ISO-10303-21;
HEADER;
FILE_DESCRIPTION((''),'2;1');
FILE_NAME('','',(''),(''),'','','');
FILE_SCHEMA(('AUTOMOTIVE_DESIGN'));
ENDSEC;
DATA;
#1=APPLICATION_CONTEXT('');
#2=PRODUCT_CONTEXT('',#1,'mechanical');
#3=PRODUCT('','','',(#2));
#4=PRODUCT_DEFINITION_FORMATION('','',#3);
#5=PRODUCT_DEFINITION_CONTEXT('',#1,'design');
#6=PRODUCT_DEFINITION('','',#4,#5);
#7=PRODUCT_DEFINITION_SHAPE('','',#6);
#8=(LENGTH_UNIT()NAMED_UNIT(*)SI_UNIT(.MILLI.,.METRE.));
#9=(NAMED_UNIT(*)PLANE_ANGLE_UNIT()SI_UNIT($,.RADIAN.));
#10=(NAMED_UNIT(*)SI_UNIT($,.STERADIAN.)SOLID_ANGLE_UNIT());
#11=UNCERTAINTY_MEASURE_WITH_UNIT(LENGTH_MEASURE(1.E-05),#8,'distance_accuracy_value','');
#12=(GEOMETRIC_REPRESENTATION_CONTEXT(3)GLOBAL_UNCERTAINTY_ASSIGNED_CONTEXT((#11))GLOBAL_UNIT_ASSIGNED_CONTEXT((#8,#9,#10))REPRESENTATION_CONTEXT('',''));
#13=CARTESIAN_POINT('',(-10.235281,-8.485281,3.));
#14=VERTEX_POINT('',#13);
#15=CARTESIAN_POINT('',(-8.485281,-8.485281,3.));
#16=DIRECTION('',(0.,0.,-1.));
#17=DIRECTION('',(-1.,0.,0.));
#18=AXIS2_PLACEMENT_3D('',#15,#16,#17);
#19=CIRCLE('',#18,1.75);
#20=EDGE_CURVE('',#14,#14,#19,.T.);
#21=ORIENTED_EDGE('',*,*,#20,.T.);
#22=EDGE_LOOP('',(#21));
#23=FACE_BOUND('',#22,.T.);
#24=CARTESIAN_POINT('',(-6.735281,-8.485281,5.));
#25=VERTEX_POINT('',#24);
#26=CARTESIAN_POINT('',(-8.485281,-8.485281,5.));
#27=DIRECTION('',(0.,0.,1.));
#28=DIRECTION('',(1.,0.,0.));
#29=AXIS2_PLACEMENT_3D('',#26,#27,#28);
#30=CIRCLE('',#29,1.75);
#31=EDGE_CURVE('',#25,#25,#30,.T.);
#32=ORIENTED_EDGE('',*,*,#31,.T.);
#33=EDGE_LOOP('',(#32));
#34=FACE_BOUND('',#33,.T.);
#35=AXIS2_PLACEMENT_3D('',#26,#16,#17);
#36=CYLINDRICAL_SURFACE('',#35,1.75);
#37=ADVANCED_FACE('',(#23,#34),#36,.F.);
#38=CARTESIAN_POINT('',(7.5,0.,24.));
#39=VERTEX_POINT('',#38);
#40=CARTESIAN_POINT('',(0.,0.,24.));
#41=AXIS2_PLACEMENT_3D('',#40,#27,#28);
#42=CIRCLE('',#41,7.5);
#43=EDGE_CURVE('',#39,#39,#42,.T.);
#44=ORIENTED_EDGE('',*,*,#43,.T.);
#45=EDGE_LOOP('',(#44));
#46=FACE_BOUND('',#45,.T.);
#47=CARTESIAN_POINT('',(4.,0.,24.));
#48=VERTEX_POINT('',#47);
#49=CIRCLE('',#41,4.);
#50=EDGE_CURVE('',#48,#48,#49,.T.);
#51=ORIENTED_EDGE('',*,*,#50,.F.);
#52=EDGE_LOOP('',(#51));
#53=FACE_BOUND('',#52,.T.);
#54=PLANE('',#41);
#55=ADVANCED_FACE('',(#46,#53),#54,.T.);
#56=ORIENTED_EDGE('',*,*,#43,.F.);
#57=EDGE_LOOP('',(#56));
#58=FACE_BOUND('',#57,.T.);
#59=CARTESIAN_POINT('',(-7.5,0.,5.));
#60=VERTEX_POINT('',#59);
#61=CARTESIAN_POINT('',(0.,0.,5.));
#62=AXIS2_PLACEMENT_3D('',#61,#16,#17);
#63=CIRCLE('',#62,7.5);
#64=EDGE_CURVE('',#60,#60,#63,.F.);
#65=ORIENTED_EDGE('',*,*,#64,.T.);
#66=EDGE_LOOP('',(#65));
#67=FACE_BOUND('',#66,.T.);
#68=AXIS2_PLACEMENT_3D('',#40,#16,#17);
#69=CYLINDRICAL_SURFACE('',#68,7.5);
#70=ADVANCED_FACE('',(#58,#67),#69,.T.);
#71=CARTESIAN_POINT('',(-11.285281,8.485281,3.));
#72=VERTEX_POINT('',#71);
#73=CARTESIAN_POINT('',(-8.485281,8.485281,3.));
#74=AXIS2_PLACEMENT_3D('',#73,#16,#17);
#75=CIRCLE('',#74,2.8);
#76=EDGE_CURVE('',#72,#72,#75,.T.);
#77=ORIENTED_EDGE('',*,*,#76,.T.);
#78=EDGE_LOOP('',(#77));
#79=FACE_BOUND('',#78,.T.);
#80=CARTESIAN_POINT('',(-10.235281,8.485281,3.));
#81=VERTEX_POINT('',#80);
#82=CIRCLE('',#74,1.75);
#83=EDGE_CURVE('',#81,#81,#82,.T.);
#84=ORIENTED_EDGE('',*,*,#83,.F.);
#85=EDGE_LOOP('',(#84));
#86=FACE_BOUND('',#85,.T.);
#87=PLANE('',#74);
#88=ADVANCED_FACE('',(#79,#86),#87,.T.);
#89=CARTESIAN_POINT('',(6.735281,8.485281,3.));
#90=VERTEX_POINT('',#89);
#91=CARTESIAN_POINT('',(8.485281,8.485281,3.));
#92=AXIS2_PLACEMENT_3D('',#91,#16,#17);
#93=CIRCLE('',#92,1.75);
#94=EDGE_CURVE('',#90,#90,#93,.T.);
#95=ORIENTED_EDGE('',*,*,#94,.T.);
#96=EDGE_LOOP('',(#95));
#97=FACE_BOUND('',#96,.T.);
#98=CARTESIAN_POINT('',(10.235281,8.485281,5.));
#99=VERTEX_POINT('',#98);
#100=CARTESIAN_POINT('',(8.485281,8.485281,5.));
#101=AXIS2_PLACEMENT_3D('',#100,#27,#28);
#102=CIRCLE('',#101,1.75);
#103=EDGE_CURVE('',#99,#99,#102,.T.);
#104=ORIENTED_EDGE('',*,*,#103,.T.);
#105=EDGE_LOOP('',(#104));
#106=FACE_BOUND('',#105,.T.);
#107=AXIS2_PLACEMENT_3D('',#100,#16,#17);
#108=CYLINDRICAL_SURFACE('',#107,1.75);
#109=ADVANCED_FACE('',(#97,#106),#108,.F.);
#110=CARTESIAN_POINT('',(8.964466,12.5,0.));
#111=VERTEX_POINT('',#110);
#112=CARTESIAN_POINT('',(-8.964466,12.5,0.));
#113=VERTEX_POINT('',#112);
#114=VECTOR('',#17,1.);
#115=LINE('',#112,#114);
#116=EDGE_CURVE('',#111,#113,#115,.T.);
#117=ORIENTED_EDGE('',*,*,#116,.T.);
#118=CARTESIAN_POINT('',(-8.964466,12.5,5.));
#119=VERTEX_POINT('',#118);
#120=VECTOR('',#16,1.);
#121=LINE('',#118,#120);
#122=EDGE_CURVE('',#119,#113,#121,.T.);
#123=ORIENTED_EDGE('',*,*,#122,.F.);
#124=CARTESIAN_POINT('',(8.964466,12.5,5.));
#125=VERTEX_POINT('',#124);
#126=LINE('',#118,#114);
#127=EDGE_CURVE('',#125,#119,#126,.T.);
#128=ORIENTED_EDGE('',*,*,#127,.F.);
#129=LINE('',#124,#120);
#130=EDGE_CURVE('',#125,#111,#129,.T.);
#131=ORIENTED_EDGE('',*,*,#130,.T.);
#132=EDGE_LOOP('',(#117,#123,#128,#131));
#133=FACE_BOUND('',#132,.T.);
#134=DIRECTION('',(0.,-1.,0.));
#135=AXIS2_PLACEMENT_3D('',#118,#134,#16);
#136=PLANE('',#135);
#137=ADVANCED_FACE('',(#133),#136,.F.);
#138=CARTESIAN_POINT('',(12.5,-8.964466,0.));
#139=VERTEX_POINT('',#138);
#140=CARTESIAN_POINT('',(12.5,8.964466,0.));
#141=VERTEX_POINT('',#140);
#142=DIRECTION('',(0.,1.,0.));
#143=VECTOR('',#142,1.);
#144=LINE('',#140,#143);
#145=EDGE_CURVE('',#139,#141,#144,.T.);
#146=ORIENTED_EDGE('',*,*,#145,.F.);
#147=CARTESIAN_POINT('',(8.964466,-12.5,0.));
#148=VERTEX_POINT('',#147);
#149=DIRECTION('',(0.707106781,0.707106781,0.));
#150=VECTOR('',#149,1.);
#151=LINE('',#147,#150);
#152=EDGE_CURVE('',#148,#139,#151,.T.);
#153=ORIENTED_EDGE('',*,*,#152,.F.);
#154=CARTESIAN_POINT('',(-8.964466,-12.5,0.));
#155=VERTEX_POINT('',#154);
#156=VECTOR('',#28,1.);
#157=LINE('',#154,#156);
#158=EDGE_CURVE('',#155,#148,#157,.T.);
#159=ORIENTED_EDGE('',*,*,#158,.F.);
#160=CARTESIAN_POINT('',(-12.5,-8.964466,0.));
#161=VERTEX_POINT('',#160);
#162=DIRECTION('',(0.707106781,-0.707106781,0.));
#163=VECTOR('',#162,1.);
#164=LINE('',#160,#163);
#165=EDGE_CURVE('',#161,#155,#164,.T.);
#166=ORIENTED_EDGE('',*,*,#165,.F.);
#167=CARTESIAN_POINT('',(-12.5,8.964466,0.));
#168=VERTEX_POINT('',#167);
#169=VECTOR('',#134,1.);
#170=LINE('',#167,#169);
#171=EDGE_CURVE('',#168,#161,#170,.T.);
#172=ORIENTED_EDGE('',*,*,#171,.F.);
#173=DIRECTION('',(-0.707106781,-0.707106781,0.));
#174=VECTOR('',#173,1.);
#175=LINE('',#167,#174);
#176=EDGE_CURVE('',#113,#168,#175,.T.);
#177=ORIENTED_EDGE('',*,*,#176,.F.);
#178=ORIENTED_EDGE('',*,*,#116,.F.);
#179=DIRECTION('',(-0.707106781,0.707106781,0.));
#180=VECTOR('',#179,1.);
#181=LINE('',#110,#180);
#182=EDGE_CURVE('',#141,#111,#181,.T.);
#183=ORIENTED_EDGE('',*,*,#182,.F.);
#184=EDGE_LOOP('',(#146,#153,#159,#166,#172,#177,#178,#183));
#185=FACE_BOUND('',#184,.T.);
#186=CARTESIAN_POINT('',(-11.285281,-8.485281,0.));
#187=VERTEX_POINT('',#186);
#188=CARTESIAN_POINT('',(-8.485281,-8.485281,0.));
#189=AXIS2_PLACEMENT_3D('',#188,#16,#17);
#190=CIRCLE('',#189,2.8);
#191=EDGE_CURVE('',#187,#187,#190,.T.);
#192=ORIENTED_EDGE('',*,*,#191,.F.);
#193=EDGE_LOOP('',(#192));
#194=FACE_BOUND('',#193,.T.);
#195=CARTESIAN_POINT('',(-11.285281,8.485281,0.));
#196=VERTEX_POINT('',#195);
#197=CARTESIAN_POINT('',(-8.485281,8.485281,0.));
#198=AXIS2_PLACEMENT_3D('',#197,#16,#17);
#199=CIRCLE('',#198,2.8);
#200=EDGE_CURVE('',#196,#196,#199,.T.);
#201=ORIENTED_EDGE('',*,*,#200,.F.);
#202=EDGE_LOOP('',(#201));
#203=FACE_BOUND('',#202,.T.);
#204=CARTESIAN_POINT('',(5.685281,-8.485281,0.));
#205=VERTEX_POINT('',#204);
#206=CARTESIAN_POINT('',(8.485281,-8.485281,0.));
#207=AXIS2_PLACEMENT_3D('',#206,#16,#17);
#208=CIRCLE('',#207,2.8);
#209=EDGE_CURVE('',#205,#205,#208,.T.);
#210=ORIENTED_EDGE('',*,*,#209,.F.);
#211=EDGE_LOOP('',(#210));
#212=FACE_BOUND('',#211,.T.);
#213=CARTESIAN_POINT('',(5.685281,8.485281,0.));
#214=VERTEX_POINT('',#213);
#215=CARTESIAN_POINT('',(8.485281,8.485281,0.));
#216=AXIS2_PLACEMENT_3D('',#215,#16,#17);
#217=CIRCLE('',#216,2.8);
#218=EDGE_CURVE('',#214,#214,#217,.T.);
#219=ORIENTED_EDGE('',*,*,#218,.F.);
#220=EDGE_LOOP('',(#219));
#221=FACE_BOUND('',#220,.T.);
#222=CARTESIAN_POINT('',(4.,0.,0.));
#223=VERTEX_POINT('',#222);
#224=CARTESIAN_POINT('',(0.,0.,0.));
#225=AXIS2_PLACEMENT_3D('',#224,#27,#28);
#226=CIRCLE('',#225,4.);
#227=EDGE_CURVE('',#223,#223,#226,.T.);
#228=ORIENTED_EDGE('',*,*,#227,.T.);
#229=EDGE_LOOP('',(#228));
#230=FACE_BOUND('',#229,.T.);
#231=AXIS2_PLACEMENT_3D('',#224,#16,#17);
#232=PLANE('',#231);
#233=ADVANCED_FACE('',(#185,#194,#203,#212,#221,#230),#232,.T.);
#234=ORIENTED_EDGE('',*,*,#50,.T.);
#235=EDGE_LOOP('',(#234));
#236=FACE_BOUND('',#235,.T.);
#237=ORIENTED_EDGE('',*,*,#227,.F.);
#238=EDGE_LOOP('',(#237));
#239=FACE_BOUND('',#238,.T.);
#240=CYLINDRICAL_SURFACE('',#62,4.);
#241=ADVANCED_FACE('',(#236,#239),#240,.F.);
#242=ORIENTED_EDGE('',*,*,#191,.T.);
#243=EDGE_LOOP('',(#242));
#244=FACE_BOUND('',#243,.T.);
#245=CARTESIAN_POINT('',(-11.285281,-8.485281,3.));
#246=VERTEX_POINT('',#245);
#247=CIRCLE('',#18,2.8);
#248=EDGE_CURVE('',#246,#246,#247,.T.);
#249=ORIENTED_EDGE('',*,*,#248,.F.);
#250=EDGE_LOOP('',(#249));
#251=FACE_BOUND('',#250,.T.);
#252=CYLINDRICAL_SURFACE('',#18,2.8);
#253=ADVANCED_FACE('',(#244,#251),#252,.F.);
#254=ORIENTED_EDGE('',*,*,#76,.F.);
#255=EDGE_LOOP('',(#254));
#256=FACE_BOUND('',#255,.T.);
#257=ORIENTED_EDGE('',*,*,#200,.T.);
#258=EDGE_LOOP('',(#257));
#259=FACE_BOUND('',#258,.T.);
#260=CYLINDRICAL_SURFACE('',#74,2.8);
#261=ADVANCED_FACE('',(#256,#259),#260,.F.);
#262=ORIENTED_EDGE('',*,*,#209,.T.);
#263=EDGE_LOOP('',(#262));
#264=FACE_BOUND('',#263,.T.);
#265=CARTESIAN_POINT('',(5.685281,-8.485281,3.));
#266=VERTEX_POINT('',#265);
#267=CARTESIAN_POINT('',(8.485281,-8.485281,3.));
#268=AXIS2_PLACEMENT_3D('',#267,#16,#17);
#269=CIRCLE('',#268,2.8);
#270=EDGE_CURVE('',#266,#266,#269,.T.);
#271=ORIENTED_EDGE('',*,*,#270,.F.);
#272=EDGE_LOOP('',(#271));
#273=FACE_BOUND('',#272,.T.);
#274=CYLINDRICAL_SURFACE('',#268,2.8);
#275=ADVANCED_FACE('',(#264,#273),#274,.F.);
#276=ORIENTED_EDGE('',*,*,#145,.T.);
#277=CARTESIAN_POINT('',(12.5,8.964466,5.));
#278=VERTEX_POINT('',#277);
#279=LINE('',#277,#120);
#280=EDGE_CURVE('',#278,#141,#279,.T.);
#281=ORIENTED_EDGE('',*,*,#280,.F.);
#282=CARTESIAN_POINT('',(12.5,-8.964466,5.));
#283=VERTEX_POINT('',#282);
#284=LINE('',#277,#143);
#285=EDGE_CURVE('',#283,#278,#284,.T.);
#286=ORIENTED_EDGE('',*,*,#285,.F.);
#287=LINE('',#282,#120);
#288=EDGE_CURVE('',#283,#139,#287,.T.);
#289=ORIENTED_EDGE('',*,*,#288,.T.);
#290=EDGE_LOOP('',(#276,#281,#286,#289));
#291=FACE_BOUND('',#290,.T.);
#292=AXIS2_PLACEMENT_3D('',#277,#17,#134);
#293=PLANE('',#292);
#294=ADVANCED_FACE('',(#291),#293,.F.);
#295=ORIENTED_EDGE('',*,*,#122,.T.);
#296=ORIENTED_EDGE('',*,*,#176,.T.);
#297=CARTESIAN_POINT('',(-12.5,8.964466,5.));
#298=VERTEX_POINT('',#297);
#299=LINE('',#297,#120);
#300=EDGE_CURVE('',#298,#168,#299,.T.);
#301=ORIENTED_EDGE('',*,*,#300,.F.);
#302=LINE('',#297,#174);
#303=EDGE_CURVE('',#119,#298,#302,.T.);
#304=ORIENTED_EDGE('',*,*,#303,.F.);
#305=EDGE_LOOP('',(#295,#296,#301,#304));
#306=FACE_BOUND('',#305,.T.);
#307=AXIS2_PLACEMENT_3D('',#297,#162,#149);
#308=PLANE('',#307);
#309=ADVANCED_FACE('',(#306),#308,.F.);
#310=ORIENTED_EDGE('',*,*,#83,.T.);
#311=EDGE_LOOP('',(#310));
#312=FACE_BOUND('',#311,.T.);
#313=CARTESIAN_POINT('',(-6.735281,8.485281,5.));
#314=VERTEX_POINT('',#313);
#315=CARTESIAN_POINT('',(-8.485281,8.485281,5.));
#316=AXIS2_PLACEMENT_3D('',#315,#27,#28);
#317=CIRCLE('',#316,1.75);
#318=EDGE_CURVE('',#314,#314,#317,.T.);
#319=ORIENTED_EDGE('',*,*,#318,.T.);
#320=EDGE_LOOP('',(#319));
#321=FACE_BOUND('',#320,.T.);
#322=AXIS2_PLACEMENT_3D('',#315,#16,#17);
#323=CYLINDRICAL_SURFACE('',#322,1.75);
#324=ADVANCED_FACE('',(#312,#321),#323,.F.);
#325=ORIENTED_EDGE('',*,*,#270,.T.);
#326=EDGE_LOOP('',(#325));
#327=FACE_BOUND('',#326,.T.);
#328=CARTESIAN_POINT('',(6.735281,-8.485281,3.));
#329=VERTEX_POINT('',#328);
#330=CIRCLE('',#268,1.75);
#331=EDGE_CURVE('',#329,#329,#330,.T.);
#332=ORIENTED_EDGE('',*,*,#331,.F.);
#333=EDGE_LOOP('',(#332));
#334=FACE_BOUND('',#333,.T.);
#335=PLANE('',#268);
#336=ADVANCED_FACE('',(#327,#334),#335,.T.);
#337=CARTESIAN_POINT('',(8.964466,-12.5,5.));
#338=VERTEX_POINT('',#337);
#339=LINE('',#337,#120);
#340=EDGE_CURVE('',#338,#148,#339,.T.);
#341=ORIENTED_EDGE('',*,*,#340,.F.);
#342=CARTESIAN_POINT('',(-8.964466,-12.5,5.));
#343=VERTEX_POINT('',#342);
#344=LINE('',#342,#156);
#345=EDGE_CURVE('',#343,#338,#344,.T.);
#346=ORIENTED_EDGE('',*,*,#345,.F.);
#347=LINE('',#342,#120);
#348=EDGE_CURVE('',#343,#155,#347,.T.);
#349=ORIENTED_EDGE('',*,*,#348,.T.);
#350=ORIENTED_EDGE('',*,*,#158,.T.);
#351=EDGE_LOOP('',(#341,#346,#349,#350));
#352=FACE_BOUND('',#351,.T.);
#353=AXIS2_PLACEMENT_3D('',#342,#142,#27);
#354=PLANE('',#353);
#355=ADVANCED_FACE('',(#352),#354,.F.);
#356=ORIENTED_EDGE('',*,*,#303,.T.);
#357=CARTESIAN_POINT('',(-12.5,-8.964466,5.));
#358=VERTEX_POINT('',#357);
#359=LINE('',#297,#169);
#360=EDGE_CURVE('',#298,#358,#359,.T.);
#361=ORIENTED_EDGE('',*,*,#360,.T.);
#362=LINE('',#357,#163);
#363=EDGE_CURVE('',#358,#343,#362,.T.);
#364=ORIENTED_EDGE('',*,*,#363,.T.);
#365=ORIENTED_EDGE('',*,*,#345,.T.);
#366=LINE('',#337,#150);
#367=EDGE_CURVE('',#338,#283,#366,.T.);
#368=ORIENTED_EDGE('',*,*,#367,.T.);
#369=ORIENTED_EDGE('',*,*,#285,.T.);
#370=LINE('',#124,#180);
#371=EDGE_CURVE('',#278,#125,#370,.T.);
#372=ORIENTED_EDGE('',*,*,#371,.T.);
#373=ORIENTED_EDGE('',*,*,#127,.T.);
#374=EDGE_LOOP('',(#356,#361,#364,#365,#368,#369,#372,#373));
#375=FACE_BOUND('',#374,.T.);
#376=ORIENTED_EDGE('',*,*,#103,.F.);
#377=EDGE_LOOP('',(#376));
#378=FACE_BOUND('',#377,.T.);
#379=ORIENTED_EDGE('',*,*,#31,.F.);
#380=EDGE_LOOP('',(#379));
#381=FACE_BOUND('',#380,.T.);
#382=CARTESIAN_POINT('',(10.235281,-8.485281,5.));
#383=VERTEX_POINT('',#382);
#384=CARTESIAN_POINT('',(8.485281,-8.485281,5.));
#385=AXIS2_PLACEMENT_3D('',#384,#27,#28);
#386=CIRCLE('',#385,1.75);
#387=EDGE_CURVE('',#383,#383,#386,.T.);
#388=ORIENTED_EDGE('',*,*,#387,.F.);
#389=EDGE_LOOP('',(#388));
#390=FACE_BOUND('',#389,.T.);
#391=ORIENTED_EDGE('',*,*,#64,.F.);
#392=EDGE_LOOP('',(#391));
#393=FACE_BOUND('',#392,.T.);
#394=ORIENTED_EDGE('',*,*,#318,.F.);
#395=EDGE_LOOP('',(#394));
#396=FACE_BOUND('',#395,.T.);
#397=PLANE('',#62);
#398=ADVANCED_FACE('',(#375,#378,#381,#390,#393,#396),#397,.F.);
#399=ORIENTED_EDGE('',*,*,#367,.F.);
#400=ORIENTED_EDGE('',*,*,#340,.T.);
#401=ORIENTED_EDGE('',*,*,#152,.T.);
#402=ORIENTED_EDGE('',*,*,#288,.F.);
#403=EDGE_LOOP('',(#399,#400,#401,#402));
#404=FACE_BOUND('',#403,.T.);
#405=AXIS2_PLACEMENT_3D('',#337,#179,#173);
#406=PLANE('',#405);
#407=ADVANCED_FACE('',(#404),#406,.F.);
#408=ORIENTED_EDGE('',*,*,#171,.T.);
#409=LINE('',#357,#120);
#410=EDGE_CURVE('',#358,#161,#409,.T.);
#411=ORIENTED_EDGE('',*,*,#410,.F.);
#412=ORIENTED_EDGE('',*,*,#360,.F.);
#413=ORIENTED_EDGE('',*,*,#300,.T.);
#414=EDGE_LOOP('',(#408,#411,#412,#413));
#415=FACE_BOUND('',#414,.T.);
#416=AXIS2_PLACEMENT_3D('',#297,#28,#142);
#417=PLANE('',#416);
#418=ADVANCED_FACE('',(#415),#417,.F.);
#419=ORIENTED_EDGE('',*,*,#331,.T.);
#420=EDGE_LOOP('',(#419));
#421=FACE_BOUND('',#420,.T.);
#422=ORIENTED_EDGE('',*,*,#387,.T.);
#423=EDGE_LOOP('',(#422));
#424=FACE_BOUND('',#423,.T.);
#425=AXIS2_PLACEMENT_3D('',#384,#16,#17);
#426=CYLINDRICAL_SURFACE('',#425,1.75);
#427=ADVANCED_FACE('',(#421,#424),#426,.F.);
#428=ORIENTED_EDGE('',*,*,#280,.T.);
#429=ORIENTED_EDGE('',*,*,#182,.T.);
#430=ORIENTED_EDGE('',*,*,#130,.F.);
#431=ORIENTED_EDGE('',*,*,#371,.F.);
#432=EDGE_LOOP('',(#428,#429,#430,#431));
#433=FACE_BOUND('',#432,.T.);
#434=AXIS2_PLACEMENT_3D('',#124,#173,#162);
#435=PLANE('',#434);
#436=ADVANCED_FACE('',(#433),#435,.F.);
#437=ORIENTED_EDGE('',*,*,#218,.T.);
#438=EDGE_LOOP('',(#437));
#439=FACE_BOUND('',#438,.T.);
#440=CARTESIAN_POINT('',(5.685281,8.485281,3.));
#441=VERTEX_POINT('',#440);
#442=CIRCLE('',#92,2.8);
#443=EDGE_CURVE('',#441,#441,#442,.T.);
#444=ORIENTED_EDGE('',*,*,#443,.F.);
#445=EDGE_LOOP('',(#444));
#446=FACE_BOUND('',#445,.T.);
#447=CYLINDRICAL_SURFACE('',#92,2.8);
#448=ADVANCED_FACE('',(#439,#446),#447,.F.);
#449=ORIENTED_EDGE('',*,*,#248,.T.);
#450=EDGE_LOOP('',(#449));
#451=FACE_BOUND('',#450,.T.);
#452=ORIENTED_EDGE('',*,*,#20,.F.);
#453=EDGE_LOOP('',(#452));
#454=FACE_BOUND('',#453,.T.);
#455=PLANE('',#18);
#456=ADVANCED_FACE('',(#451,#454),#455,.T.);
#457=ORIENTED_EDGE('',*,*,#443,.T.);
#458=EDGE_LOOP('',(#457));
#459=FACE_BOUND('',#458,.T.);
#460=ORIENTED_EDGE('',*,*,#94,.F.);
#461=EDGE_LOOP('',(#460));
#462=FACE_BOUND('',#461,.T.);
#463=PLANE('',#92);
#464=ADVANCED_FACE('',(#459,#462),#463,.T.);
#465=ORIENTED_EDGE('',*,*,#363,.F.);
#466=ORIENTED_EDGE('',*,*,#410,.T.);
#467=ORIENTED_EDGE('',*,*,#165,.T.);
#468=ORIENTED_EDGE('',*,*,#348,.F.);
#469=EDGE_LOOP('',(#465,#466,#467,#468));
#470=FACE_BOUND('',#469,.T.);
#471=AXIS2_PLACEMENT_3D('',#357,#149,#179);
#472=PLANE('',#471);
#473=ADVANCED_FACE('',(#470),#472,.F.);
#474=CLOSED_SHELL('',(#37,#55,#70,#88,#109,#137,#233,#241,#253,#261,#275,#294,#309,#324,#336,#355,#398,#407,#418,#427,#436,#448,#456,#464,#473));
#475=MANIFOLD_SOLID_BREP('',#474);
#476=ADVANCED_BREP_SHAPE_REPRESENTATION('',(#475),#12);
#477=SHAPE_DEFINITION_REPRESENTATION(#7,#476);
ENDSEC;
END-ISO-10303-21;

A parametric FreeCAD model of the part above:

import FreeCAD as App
import Part
import Sketcher
from FreeCAD import Vector


def add_polygon(sketch, points):
    """Adds a closed chain of lines whose ends are joined by coincident constraints."""
    first, n = sketch.GeometryCount, len(points)
    for a, b in zip(points, points[1:] + points[:1]):
        sketch.addGeometry(Part.LineSegment(App.Vector(*a, 0), App.Vector(*b, 0)), False)
    for i in range(n):
        sketch.addConstraint(Sketcher.Constraint("Coincident", first + i, 2, first + (i + 1) % n, 1))

doc = App.newDocument("Part")
body = doc.addObject("PartDesign::Body", "Body")

# Sketch on XY plane
sketch1 = doc.addObject("Sketcher::SketchObject", "Sketch")
body.addObject(sketch1)
sketch1.AttachmentSupport = (doc.XY_Plane, [""])
sketch1.MapMode = "FlatFace"
add_polygon(sketch1, [(9, 12.5), (-9, 12.5), (-12.5, 9), (-12.5, -9), (-9, -12.5), (9, -12.5), (12.5, -9), (12.5, 9)])  # lines 0-7
sketch1.addGeometry(Part.Circle(Vector(8.5, -8.5, 0), Vector(0, 0, 1), 1.8), False)  # 8
sketch1.addGeometry(Part.Circle(Vector(0, 0, 0), Vector(0, 0, 1), 4), False)  # 9
sketch1.addGeometry(Part.Circle(Vector(-8.5, -8.5, 0), Vector(0, 0, 1), 1.8), False)  # 10
sketch1.addGeometry(Part.Circle(Vector(8.5, 8.5, 0), Vector(0, 0, 1), 1.8), False)  # 11
sketch1.addGeometry(Part.Circle(Vector(-8.5, 8.5, 0), Vector(0, 0, 1), 1.8), False)  # 12
sketch1.addConstraint([
    Sketcher.Constraint("Horizontal", 0),
    Sketcher.Constraint("Vertical", 2),
    Sketcher.Constraint("Horizontal", 4),
    Sketcher.Constraint("Vertical", 6),
    Sketcher.Constraint("Coincident", 9, 3, -1, 1),
    Sketcher.Constraint("Equal", 8, 10),
    Sketcher.Constraint("Equal", 10, 11),
    Sketcher.Constraint("Equal", 11, 12),
    Sketcher.Constraint("Symmetric", 10, 3, 11, 3, -1, 1),
    Sketcher.Constraint("Symmetric", 8, 3, 12, 3, -1, 1),
    Sketcher.Constraint("Symmetric", 0, 2, 4, 2, -1, 1),
    Sketcher.Constraint("Symmetric", 1, 2, 5, 2, -1, 1),
    Sketcher.Constraint("Symmetric", 8, 3, 10, 3, -2),
    Sketcher.Constraint("Perpendicular", 1, 3),
    Sketcher.Constraint("Perpendicular", 5, 7),
    Sketcher.Constraint("Horizontal", 2, 2, 5, 2),
    Sketcher.Constraint("Horizontal", 1, 2, 6, 2),
    Sketcher.Constraint("Vertical", 0, 2, 3, 2),
    Sketcher.Constraint("Equal", 4, 2),
    Sketcher.Constraint("Diameter", 9, 8.0),
    Sketcher.Constraint("Diameter", 8, 3.5),
    Sketcher.Constraint("Distance", 1, 5.0),
    Sketcher.Constraint("DistanceY", -1, 1, 0, 2, 12.5),
    Sketcher.Constraint("DistanceX", -1, 1, 8, 3, 8.485281),
    Sketcher.Constraint("DistanceY", 8, 3, -1, 1, 8.485281),
])
pad1 = doc.addObject("PartDesign::Pad", "Pad")
body.addObject(pad1)
pad1.Profile = sketch1
pad1.Length = 5

# Sketch on XY plane
sketch2 = doc.addObject("Sketcher::SketchObject", "Sketch001")
body.addObject(sketch2)
sketch2.AttachmentSupport = (doc.XY_Plane, [""])
sketch2.MapMode = "FlatFace"
sketch2.AttachmentOffset = App.Placement(Vector(0, 0, 5), App.Rotation())
sketch2.addGeometry([
    Part.Circle(Vector(0, 0, 0), Vector(0, 0, 1), 7.5),
    Part.Circle(Vector(0, 0, 0), Vector(0, 0, 1), 4),
], False)
sketch2.addConstraint([
    Sketcher.Constraint("Coincident", 0, 3, -1, 1),
    Sketcher.Constraint("Coincident", 1, 3, -1, 1),
    Sketcher.Constraint("Diameter", 0, 15.0),
    Sketcher.Constraint("Diameter", 1, 8.0),
])
pad2 = doc.addObject("PartDesign::Pad", "Pad001")
body.addObject(pad2)
pad2.Profile = sketch2
pad2.Length = 19

# Sketch on XY plane
sketch3 = doc.addObject("Sketcher::SketchObject", "Sketch002")
body.addObject(sketch3)
sketch3.AttachmentSupport = (doc.XY_Plane, [""])
sketch3.MapMode = "FlatFace"
sketch3.addGeometry([
    Part.Circle(Vector(8.5, 8.5, 0), Vector(0, 0, 1), 2.8),
    Part.Circle(Vector(-8.5, 8.5, 0), Vector(0, 0, 1), 2.8),
    Part.Circle(Vector(-8.5, -8.5, 0), Vector(0, 0, 1), 2.8),
    Part.Circle(Vector(8.5, -8.5, 0), Vector(0, 0, 1), 2.8),
], False)
sketch3.addConstraint([
    Sketcher.Constraint("Equal", 0, 1),
    Sketcher.Constraint("Equal", 1, 2),
    Sketcher.Constraint("Equal", 2, 3),
    Sketcher.Constraint("Symmetric", 0, 3, 2, 3, -1, 1),
    Sketcher.Constraint("Symmetric", 1, 3, 3, 3, -1, 1),
    Sketcher.Constraint("Symmetric", 0, 3, 1, 3, -2),
    Sketcher.Constraint("Diameter", 0, 5.6),
    Sketcher.Constraint("DistanceX", -1, 1, 0, 3, 8.485281),
    Sketcher.Constraint("DistanceY", -1, 1, 0, 3, 8.485281),
])
pocket1 = doc.addObject("PartDesign::Pocket", "Pocket")
body.addObject(pocket1)
pocket1.Profile = sketch3
pocket1.Length = 3
pocket1.Reversed = True

doc.recompute()
